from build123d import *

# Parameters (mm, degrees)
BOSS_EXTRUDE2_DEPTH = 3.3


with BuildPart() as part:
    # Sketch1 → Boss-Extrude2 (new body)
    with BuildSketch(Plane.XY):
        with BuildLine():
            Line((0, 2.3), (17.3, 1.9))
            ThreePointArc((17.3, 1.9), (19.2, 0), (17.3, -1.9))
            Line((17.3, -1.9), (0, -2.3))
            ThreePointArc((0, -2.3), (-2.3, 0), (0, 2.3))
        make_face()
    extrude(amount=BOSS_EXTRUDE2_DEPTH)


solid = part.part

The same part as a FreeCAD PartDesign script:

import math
import FreeCAD as App
import Part
import Sketcher
from FreeCAD import Vector
Q = App.Units.Quantity

doc = App.newDocument("Part")
body = doc.addObject("PartDesign::Body", "Body")

# Sketch on XY plane
sketch1 = body.newObject("Sketcher::SketchObject", "Sketch")
sketch1.AttachmentSupport = (doc.getObject("XY_Plane"), [""])
sketch1.MapMode = "FlatFace"
sketch1.addGeometry(Part.LineSegment(Vector(17.3, 1.9, 0), Vector(0, 2.3, 0)), False)
sketch1.addGeometry(Part.ArcOfCircle(Part.Circle(Vector(0, 0, 0), Vector(0, 0, 1), 2.3), math.radians(90), math.radians(270)), False)
sketch1.addGeometry(Part.LineSegment(Vector(0, -2.3, 0), Vector(17.3, -1.9, 0)), False)
sketch1.addGeometry(Part.ArcOfCircle(Part.Circle(Vector(17.3, 0, 0), Vector(0, 0, 1), 1.9), math.radians(-90), math.radians(90)), False)
sketch1.addConstraint(Sketcher.Constraint("Coincident", 0, 2, 1, 1))
sketch1.addConstraint(Sketcher.Constraint("Coincident", 1, 2, 2, 1))
sketch1.addConstraint(Sketcher.Constraint("Coincident", 2, 2, 3, 1))
sketch1.addConstraint(Sketcher.Constraint("Coincident", 3, 2, 0, 1))
sketch1.addConstraint(Sketcher.Constraint("Coincident", 1, 3, -1, 1))
sketch1.addConstraint(Sketcher.Constraint("Symmetric", 2, 2, 3, 2, -1))
sketch1.addConstraint(Sketcher.Constraint("PointOnObject", 0, 2, -2))
sketch1.addConstraint(Sketcher.Constraint("PointOnObject", 1, 2, -2))
sketch1.addConstraint(Sketcher.Constraint("Vertical", 3, 3, 2, 2))
sketch1.addConstraint(Sketcher.Constraint("Radius", 1, Q("2.3 mm")))
sketch1.addConstraint(Sketcher.Constraint("Radius", 3, Q("1.9 mm")))
sketch1.addConstraint(Sketcher.Constraint("DistanceX", -1, 1, 3, 3, Q("17.3 mm")))
pad1 = body.newObject("PartDesign::Pad", "Pad")
pad1.Profile = sketch1
pad1.Length = 3.3

doc.recompute()
